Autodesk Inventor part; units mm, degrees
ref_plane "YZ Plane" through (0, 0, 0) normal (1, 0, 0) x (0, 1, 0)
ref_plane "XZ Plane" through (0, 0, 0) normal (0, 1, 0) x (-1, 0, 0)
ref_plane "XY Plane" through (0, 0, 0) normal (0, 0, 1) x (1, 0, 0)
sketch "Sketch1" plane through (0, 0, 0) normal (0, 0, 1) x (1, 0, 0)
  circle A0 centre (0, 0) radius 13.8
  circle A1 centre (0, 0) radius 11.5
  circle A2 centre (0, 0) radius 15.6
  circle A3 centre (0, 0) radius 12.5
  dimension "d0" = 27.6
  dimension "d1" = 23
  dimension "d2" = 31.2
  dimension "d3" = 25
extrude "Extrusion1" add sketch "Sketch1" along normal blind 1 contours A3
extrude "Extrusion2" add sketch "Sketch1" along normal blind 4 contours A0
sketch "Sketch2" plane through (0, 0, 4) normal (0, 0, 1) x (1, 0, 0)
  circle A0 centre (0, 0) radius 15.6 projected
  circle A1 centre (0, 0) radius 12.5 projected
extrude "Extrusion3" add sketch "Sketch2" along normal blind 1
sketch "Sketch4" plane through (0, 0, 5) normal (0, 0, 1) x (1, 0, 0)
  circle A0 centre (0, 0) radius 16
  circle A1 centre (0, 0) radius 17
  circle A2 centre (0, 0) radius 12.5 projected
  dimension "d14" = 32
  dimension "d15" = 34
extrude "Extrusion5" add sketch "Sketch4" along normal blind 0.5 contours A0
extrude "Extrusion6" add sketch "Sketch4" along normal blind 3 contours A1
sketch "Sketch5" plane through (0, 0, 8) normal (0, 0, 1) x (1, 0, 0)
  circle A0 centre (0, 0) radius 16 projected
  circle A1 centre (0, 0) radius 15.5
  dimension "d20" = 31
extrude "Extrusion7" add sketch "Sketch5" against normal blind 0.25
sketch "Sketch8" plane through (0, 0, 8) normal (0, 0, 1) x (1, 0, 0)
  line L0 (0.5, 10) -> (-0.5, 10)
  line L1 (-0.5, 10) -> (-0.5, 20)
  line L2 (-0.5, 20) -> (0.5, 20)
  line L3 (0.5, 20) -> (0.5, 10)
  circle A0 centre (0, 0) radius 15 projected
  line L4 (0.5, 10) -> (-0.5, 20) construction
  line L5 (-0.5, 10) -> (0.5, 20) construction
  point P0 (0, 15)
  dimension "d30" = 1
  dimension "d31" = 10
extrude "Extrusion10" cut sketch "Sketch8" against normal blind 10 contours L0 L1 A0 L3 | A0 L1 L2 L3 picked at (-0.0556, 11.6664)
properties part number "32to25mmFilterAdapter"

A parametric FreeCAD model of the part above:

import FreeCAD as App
import Part
import Sketcher

V = App.Vector


def add_polygon(sketch, points):
    """Adds a closed chain of lines whose ends are joined by coincident constraints."""
    first, n = sketch.GeometryCount, len(points)
    for a, b in zip(points, points[1:] + points[:1]):
        sketch.addGeometry(Part.LineSegment(App.Vector(*a, 0), App.Vector(*b, 0)), False)
    for i in range(n):
        sketch.addConstraint(Sketcher.Constraint("Coincident", first + i, 2, first + (i + 1) % n, 1))

doc = App.newDocument("Part")
body = doc.addObject("PartDesign::Body", "Body")

# Sketch on XY plane
sketch1 = body.newObject("Sketcher::SketchObject", "Sketch")
sketch1.AttachmentSupport = (doc.getObject("XY_Plane"), [""])
sketch1.MapMode = "FlatFace"
sketch1.addGeometry(Part.Circle(V(0, 0, 0), V(0, 0, 1), 12), False)
sketch1.addGeometry(Part.Circle(V(0, 0, 0), V(0, 0, 1), 12), False)
sketch1.addConstraint(Sketcher.Constraint("Coincident", 0, 3, -1, 1))
sketch1.addConstraint(Sketcher.Constraint("Coincident", 1, 3, -1, 1))
sketch1.addConstraint(Sketcher.Constraint("Diameter", 0, 25.0))
sketch1.addConstraint(Sketcher.Constraint("Diameter", 1, 23.0))
pad1 = body.newObject("PartDesign::Pad", "Pad")
pad1.Profile = sketch1
pad1.Length = 1

# Sketch on XY plane
sketch2 = body.newObject("Sketcher::SketchObject", "Sketch001")
sketch2.AttachmentSupport = (doc.getObject("XY_Plane"), [""])
sketch2.MapMode = "FlatFace"
sketch2.addGeometry(Part.Circle(V(0, 0, 0), V(0, 0, 1), 14), False)
sketch2.addGeometry(Part.Circle(V(0, 0, 0), V(0, 0, 1), 12), False)
sketch2.addConstraint(Sketcher.Constraint("Coincident", 0, 3, -1, 1))
sketch2.addConstraint(Sketcher.Constraint("Coincident", 1, 3, -1, 1))
sketch2.addConstraint(Sketcher.Constraint("Diameter", 1, 25.0))
sketch2.addConstraint(Sketcher.Constraint("Diameter", 0, 27.6))
pad2 = body.newObject("PartDesign::Pad", "Pad001")
pad2.Profile = sketch2
pad2.Length = 4

# Sketch on XY plane
sketch3 = body.newObject("Sketcher::SketchObject", "Sketch002")
sketch3.AttachmentSupport = (doc.getObject("XY_Plane"), [""])
sketch3.MapMode = "FlatFace"
sketch3.AttachmentOffset = App.Placement(V(0, 0, 4), App.Rotation())
sketch3.addGeometry(Part.Circle(V(0, 0, 0), V(0, 0, 1), 16), False)
sketch3.addGeometry(Part.Circle(V(0, 0, 0), V(0, 0, 1), 12), False)
sketch3.addConstraint(Sketcher.Constraint("Coincident", 0, 3, -1, 1))
sketch3.addConstraint(Sketcher.Constraint("Coincident", 1, 3, -1, 1))
sketch3.addConstraint(Sketcher.Constraint("Diameter", 1, 25.0))
sketch3.addConstraint(Sketcher.Constraint("Diameter", 0, 31.2))
pad3 = body.newObject("PartDesign::Pad", "Pad002")
pad3.Profile = sketch3
pad3.Length = 1

# Sketch on XY plane
sketch4 = body.newObject("Sketcher::SketchObject", "Sketch003")
sketch4.AttachmentSupport = (doc.getObject("XY_Plane"), [""])
sketch4.MapMode = "FlatFace"
sketch4.AttachmentOffset = App.Placement(V(0, 0, 5), App.Rotation())
sketch4.addGeometry(Part.Circle(V(0, 0, 0), V(0, 0, 1), 16), False)
sketch4.addGeometry(Part.Circle(V(0, 0, 0), V(0, 0, 1), 12), False)
sketch4.addConstraint(Sketcher.Constraint("Coincident", 0, 3, -1, 1))
sketch4.addConstraint(Sketcher.Constraint("Coincident", 1, 3, -1, 1))
sketch4.addConstraint(Sketcher.Constraint("Diameter", 0, 32.0))
sketch4.addConstraint(Sketcher.Constraint("Diameter", 1, 25.0))
pad4 = body.newObject("PartDesign::Pad", "Pad003")
pad4.Profile = sketch4
pad4.Length = 0.5

# Sketch on XY plane
sketch5 = body.newObject("Sketcher::SketchObject", "Sketch004")
sketch5.AttachmentSupport = (doc.getObject("XY_Plane"), [""])
sketch5.MapMode = "FlatFace"
sketch5.AttachmentOffset = App.Placement(V(0, 0, 5), App.Rotation())
sketch5.addGeometry(Part.Circle(V(0, 0, 0), V(0, 0, 1), 17), False)
sketch5.addGeometry(Part.Circle(V(0, 0, 0), V(0, 0, 1), 16), False)
sketch5.addConstraint(Sketcher.Constraint("Coincident", 0, 3, -1, 1))
sketch5.addConstraint(Sketcher.Constraint("Coincident", 1, 3, -1, 1))
sketch5.addConstraint(Sketcher.Constraint("Diameter", 0, 34.0))
sketch5.addConstraint(Sketcher.Constraint("Diameter", 1, 32.0))
pad5 = body.newObject("PartDesign::Pad", "Pad004")
pad5.Profile = sketch5
pad5.Length = 3

# Sketch on XY plane
sketch6 = body.newObject("Sketcher::SketchObject", "Sketch005")
sketch6.AttachmentSupport = (doc.getObject("XY_Plane"), [""])
sketch6.MapMode = "FlatFace"
sketch6.AttachmentOffset = App.Placement(V(0, 0, 8), App.Rotation())
sketch6.addGeometry(Part.Circle(V(0, 0, 0), V(0, 0, 1), 16), False)
sketch6.addGeometry(Part.Circle(V(0, 0, 0), V(0, 0, 1), 16), False)
sketch6.addConstraint(Sketcher.Constraint("Coincident", 0, 3, -1, 1))
sketch6.addConstraint(Sketcher.Constraint("Coincident", 1, 3, -1, 1))
sketch6.addConstraint(Sketcher.Constraint("Diameter", 1, 31.0))
sketch6.addConstraint(Sketcher.Constraint("Diameter", 0, 32.0))
pad6 = body.newObject("PartDesign::Pad", "Pad005")
pad6.Profile = sketch6
pad6.Length = 0.25
pad6.Reversed = True

# Sketch on XY plane
sketch7 = body.newObject("Sketcher::SketchObject", "Sketch006")
sketch7.AttachmentSupport = (doc.getObject("XY_Plane"), [""])
sketch7.MapMode = "FlatFace"
sketch7.AttachmentOffset = App.Placement(V(0, 0, 8), App.Rotation())
add_polygon(sketch7, [(-0.5, 10), (0.5, 10), (0.5, 20), (-0.5, 20)])  # lines 0-3
sketch7.addConstraint(Sketcher.Constraint("Horizontal", 0))
sketch7.addConstraint(Sketcher.Constraint("Vertical", 1))
sketch7.addConstraint(Sketcher.Constraint("Horizontal", 2))
sketch7.addConstraint(Sketcher.Constraint("Vertical", 3))
sketch7.addConstraint(Sketcher.Constraint("DistanceX", 0, 1, 0, 2, 1.0))
sketch7.addConstraint(Sketcher.Constraint("DistanceY", 1, 1, 1, 2, 10.0))
sketch7.addConstraint(Sketcher.Constraint("DistanceY", -1, 1, 0, 2, 10.0))
sketch7.addConstraint(Sketcher.Constraint("DistanceX", -1, 1, 0, 2, 0.5))
pocket1 = body.newObject("PartDesign::Pocket", "Pocket")
pocket1.Profile = sketch7
pocket1.Length = 10

doc.recompute()
